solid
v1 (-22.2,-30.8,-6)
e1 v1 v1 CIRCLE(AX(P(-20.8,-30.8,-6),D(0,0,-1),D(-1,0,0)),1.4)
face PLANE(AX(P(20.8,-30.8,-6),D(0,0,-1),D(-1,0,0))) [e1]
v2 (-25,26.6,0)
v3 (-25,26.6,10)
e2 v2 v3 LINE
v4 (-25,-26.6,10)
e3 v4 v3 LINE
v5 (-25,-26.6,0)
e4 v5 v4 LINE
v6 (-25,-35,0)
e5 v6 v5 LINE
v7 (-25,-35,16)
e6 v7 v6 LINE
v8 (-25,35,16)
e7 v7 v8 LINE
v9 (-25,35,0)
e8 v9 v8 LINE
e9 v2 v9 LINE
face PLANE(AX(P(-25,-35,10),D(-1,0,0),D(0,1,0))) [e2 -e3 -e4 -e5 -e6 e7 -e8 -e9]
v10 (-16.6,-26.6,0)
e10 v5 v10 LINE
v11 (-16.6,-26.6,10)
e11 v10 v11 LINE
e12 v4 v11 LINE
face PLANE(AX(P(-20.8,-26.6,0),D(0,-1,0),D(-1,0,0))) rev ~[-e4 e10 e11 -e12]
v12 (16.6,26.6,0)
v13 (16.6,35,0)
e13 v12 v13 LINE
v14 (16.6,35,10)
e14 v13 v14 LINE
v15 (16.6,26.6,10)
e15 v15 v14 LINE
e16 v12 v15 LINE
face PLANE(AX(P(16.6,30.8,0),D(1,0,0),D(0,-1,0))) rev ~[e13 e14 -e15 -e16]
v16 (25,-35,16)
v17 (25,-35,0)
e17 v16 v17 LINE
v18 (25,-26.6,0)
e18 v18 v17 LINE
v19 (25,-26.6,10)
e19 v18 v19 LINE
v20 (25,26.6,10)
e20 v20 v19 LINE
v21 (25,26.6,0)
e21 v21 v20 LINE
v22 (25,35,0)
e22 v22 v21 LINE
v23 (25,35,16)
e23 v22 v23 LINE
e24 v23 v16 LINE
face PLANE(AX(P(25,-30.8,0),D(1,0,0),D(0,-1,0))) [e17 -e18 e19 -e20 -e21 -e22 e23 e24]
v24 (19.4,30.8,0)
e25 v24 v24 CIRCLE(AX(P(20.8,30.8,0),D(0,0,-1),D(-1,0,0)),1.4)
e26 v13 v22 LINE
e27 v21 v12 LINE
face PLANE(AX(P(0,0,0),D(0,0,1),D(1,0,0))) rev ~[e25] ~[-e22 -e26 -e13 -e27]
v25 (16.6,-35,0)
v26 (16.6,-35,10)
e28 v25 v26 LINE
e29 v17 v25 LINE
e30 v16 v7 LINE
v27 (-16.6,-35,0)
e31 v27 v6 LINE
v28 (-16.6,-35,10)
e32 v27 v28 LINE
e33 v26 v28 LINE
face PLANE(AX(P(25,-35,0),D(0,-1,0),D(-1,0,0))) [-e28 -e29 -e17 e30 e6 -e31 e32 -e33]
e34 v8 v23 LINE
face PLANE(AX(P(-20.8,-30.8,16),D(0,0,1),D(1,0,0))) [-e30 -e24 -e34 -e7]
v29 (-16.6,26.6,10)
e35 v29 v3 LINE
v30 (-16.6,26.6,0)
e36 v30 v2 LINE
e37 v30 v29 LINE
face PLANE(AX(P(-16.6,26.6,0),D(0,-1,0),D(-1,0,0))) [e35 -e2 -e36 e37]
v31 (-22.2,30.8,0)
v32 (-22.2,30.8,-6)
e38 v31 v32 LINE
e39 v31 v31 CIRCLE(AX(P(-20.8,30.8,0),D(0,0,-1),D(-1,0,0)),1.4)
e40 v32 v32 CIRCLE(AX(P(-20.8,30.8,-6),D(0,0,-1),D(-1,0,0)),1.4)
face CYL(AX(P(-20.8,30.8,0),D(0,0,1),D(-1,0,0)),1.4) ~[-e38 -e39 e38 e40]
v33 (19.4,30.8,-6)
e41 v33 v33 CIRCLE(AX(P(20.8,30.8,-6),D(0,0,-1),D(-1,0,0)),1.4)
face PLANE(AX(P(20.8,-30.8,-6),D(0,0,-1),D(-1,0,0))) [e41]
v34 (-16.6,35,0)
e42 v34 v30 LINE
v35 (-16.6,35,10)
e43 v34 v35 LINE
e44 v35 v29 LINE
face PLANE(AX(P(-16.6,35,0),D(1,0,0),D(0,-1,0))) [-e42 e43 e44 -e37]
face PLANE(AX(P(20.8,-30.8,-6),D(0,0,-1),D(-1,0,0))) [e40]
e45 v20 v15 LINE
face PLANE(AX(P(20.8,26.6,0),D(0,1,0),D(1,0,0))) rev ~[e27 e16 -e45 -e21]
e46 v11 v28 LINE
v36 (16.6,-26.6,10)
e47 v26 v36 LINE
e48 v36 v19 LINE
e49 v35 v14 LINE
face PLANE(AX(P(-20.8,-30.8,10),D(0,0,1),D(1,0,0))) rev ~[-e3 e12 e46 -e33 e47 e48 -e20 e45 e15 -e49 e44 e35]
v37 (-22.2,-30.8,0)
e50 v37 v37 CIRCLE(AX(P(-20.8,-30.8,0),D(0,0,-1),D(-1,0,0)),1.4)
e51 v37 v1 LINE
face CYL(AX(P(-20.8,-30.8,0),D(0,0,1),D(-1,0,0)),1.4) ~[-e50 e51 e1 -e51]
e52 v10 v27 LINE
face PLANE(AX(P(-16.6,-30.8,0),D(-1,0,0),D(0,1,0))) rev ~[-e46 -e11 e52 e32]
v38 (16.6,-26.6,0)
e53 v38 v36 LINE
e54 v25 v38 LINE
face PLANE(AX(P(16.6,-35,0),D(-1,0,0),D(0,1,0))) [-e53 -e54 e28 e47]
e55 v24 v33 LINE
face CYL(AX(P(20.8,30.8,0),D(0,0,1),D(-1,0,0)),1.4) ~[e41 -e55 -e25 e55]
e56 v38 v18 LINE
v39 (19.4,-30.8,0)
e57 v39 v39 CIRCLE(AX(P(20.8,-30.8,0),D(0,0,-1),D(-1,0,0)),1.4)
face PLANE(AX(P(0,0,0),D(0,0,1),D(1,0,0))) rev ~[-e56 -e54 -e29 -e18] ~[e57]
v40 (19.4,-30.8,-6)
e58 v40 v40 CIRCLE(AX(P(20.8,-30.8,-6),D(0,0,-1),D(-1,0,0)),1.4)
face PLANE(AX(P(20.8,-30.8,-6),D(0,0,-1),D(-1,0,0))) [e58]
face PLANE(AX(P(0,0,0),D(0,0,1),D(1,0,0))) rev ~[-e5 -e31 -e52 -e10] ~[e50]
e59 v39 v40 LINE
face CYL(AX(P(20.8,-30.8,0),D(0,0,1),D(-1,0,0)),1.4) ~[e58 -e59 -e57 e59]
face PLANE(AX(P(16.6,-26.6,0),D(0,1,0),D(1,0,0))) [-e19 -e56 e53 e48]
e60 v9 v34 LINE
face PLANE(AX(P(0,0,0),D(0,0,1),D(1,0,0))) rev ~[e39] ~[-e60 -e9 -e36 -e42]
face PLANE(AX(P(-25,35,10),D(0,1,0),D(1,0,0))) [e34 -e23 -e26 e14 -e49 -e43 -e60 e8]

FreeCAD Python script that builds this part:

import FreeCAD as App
import Part
import Sketcher
from FreeCAD import Vector
Q = App.Units.Quantity

doc = App.newDocument("Part")
body = doc.addObject("PartDesign::Body", "Body")
body.AllowCompound = True

sketch1 = body.newObject("Sketcher::SketchObject", "Sketch")
sketch1.AttachmentSupport = (doc.getObject("XY_Plane"), [""])
sketch1.MapMode = "FlatFace"
sketch1.addGeometry([
    Part.LineSegment(Vector(25, -35, 0), Vector(25, -27, 0)),
    Part.LineSegment(Vector(25, -27, 0), Vector(17, -27, 0)),
    Part.LineSegment(Vector(17, -27, 0), Vector(17, -35, 0)),
    Part.LineSegment(Vector(17, -35, 0), Vector(25, -35, 0)),
    Part.LineSegment(Vector(25, 27, 0), Vector(25, 35, 0)),
    Part.LineSegment(Vector(25, 35, 0), Vector(17, 35, 0)),
    Part.LineSegment(Vector(17, 35, 0), Vector(17, 27, 0)),
    Part.LineSegment(Vector(17, 27, 0), Vector(25, 27, 0)),
    Part.LineSegment(Vector(-25, -35, 0), Vector(-17, -35, 0)),
    Part.LineSegment(Vector(-17, -35, 0), Vector(-17, -27, 0)),
    Part.LineSegment(Vector(-17, -27, 0), Vector(-25, -27, 0)),
    Part.LineSegment(Vector(-25, -27, 0), Vector(-25, -35, 0)),
    Part.LineSegment(Vector(-17, 35, 0), Vector(-25, 35, 0)),
    Part.LineSegment(Vector(-25, 35, 0), Vector(-25, 27, 0)),
    Part.LineSegment(Vector(-25, 27, 0), Vector(-17, 27, 0)),
    Part.LineSegment(Vector(-17, 27, 0), Vector(-17, 35, 0)),
], False)
sketch1.addConstraint([
    Sketcher.Constraint("Coincident", 0, 2, 1, 1),
    Sketcher.Constraint("Coincident", 1, 2, 2, 1),
    Sketcher.Constraint("Coincident", 2, 2, 3, 1),
    Sketcher.Constraint("Coincident", 3, 2, 0, 1),
    Sketcher.Constraint("Coincident", 4, 2, 5, 1),
    Sketcher.Constraint("Coincident", 5, 2, 6, 1),
    Sketcher.Constraint("Coincident", 6, 2, 7, 1),
    Sketcher.Constraint("Coincident", 7, 2, 4, 1),
    Sketcher.Constraint("Coincident", 8, 2, 9, 1),
    Sketcher.Constraint("Coincident", 9, 2, 10, 1),
    Sketcher.Constraint("Coincident", 10, 2, 11, 1),
    Sketcher.Constraint("Coincident", 11, 2, 8, 1),
    Sketcher.Constraint("Coincident", 12, 2, 13, 1),
    Sketcher.Constraint("Coincident", 13, 2, 14, 1),
    Sketcher.Constraint("Coincident", 14, 2, 15, 1),
    Sketcher.Constraint("Coincident", 15, 2, 12, 1),
    Sketcher.Constraint("Vertical", 0),
    Sketcher.Constraint("Horizontal", 1),
    Sketcher.Constraint("Vertical", 2),
    Sketcher.Constraint("Horizontal", 3),
    Sketcher.Constraint("Vertical", 4),
    Sketcher.Constraint("Horizontal", 5),
    Sketcher.Constraint("Vertical", 6),
    Sketcher.Constraint("Horizontal", 7),
    Sketcher.Constraint("Horizontal", 8),
    Sketcher.Constraint("Vertical", 9),
    Sketcher.Constraint("Horizontal", 10),
    Sketcher.Constraint("Vertical", 11),
    Sketcher.Constraint("Horizontal", 12),
    Sketcher.Constraint("Vertical", 13),
    Sketcher.Constraint("Horizontal", 14),
    Sketcher.Constraint("Vertical", 15),
    Sketcher.Constraint("Symmetric", 5, 2, 8, 2, -1, 1),
    Sketcher.Constraint("Symmetric", 7, 2, 10, 2, -1, 1),
    Sketcher.Constraint("Symmetric", 3, 2, 12, 2, -1, 1),
    Sketcher.Constraint("Symmetric", 1, 2, 14, 2, -1, 1),
    Sketcher.Constraint("Symmetric", 2, 2, 8, 2, -2),
    Sketcher.Constraint("Symmetric", 0, 2, 10, 2, -2),
    Sketcher.Constraint("Equal", 14, 0),
    Sketcher.Constraint("DistanceX", 1, 2, 1, 1, Q("8.4 mm")),
    Sketcher.Constraint("DistanceX", -1, 1, 0, 2, Q("25 mm")),
    Sketcher.Constraint("DistanceY", 2, 2, -1, 1, Q("35 mm")),
])
pad1 = body.newObject("PartDesign::Pad", "Pad")
pad1.Profile = sketch1
pad1.Length = 10

sketch2 = body.newObject("Sketcher::SketchObject", "Sketch001")
sketch2.AttachmentSupport = (doc.getObject("XY_Plane"), [""])
sketch2.MapMode = "FlatFace"
sketch2.AttachmentOffset = App.Placement(Vector(0, 0, 10), App.Rotation())
sketch2.addGeometry([
    Part.LineSegment(Vector(25, -35, 0), Vector(25, 35, 0)),
    Part.LineSegment(Vector(25, 35, 0), Vector(-25, 35, 0)),
    Part.LineSegment(Vector(-25, 35, 0), Vector(-25, -35, 0)),
    Part.LineSegment(Vector(-25, -35, 0), Vector(25, -35, 0)),
], False)
sketch2.addConstraint([
    Sketcher.Constraint("Coincident", 0, 2, 1, 1),
    Sketcher.Constraint("Coincident", 1, 2, 2, 1),
    Sketcher.Constraint("Coincident", 2, 2, 3, 1),
    Sketcher.Constraint("Coincident", 3, 2, 0, 1),
    Sketcher.Constraint("Vertical", 0),
    Sketcher.Constraint("Horizontal", 1),
    Sketcher.Constraint("Vertical", 2),
    Sketcher.Constraint("Horizontal", 3),
    Sketcher.Constraint("Symmetric", 0, 2, 2, 2, -1, 1),
    Sketcher.Constraint("DistanceX", 1, 2, 1, 1, Q("50 mm")),
    Sketcher.Constraint("DistanceY", 0, 1, 0, 2, Q("70 mm")),
])
pad2 = body.newObject("PartDesign::Pad", "Pad001")
pad2.Profile = sketch2
pad2.Length = 6

sketch3 = body.newObject("Sketcher::SketchObject", "Sketch002")
sketch3.AttachmentSupport = (doc.getObject("XY_Plane"), [""])
sketch3.MapMode = "FlatFace"
sketch3.addGeometry([
    Part.Circle(Vector(-20.8, -30.8, 0), Vector(0, 0, 1), 1.4),
    Part.Circle(Vector(20.8, -30.8, 0), Vector(0, 0, 1), 1.4),
    Part.Circle(Vector(20.8, 30.8, 0), Vector(0, 0, 1), 1.4),
    Part.Circle(Vector(-20.8, 30.8, 0), Vector(0, 0, 1), 1.4),
], False)
sketch3.addConstraint([
    Sketcher.Constraint("Equal", 0, 1),
    Sketcher.Constraint("Equal", 1, 2),
    Sketcher.Constraint("Equal", 2, 3),
    Sketcher.Constraint("Symmetric", 0, 3, 2, 3, -1, 1),
    Sketcher.Constraint("Symmetric", 1, 3, 3, 3, -1, 1),
    Sketcher.Constraint("Symmetric", 0, 3, 1, 3, -2),
    Sketcher.Constraint("Diameter", 0, Q("2.8 mm")),
    Sketcher.Constraint("DistanceX", 0, 3, -1, 1, Q("20.8 mm")),
    Sketcher.Constraint("DistanceY", 0, 3, -1, 1, Q("30.8 mm")),
])
pad3 = body.newObject("PartDesign::Pad", "Pad002")
pad3.Profile = sketch3
pad3.Length = 6
pad3.Reversed = True

doc.recompute()
